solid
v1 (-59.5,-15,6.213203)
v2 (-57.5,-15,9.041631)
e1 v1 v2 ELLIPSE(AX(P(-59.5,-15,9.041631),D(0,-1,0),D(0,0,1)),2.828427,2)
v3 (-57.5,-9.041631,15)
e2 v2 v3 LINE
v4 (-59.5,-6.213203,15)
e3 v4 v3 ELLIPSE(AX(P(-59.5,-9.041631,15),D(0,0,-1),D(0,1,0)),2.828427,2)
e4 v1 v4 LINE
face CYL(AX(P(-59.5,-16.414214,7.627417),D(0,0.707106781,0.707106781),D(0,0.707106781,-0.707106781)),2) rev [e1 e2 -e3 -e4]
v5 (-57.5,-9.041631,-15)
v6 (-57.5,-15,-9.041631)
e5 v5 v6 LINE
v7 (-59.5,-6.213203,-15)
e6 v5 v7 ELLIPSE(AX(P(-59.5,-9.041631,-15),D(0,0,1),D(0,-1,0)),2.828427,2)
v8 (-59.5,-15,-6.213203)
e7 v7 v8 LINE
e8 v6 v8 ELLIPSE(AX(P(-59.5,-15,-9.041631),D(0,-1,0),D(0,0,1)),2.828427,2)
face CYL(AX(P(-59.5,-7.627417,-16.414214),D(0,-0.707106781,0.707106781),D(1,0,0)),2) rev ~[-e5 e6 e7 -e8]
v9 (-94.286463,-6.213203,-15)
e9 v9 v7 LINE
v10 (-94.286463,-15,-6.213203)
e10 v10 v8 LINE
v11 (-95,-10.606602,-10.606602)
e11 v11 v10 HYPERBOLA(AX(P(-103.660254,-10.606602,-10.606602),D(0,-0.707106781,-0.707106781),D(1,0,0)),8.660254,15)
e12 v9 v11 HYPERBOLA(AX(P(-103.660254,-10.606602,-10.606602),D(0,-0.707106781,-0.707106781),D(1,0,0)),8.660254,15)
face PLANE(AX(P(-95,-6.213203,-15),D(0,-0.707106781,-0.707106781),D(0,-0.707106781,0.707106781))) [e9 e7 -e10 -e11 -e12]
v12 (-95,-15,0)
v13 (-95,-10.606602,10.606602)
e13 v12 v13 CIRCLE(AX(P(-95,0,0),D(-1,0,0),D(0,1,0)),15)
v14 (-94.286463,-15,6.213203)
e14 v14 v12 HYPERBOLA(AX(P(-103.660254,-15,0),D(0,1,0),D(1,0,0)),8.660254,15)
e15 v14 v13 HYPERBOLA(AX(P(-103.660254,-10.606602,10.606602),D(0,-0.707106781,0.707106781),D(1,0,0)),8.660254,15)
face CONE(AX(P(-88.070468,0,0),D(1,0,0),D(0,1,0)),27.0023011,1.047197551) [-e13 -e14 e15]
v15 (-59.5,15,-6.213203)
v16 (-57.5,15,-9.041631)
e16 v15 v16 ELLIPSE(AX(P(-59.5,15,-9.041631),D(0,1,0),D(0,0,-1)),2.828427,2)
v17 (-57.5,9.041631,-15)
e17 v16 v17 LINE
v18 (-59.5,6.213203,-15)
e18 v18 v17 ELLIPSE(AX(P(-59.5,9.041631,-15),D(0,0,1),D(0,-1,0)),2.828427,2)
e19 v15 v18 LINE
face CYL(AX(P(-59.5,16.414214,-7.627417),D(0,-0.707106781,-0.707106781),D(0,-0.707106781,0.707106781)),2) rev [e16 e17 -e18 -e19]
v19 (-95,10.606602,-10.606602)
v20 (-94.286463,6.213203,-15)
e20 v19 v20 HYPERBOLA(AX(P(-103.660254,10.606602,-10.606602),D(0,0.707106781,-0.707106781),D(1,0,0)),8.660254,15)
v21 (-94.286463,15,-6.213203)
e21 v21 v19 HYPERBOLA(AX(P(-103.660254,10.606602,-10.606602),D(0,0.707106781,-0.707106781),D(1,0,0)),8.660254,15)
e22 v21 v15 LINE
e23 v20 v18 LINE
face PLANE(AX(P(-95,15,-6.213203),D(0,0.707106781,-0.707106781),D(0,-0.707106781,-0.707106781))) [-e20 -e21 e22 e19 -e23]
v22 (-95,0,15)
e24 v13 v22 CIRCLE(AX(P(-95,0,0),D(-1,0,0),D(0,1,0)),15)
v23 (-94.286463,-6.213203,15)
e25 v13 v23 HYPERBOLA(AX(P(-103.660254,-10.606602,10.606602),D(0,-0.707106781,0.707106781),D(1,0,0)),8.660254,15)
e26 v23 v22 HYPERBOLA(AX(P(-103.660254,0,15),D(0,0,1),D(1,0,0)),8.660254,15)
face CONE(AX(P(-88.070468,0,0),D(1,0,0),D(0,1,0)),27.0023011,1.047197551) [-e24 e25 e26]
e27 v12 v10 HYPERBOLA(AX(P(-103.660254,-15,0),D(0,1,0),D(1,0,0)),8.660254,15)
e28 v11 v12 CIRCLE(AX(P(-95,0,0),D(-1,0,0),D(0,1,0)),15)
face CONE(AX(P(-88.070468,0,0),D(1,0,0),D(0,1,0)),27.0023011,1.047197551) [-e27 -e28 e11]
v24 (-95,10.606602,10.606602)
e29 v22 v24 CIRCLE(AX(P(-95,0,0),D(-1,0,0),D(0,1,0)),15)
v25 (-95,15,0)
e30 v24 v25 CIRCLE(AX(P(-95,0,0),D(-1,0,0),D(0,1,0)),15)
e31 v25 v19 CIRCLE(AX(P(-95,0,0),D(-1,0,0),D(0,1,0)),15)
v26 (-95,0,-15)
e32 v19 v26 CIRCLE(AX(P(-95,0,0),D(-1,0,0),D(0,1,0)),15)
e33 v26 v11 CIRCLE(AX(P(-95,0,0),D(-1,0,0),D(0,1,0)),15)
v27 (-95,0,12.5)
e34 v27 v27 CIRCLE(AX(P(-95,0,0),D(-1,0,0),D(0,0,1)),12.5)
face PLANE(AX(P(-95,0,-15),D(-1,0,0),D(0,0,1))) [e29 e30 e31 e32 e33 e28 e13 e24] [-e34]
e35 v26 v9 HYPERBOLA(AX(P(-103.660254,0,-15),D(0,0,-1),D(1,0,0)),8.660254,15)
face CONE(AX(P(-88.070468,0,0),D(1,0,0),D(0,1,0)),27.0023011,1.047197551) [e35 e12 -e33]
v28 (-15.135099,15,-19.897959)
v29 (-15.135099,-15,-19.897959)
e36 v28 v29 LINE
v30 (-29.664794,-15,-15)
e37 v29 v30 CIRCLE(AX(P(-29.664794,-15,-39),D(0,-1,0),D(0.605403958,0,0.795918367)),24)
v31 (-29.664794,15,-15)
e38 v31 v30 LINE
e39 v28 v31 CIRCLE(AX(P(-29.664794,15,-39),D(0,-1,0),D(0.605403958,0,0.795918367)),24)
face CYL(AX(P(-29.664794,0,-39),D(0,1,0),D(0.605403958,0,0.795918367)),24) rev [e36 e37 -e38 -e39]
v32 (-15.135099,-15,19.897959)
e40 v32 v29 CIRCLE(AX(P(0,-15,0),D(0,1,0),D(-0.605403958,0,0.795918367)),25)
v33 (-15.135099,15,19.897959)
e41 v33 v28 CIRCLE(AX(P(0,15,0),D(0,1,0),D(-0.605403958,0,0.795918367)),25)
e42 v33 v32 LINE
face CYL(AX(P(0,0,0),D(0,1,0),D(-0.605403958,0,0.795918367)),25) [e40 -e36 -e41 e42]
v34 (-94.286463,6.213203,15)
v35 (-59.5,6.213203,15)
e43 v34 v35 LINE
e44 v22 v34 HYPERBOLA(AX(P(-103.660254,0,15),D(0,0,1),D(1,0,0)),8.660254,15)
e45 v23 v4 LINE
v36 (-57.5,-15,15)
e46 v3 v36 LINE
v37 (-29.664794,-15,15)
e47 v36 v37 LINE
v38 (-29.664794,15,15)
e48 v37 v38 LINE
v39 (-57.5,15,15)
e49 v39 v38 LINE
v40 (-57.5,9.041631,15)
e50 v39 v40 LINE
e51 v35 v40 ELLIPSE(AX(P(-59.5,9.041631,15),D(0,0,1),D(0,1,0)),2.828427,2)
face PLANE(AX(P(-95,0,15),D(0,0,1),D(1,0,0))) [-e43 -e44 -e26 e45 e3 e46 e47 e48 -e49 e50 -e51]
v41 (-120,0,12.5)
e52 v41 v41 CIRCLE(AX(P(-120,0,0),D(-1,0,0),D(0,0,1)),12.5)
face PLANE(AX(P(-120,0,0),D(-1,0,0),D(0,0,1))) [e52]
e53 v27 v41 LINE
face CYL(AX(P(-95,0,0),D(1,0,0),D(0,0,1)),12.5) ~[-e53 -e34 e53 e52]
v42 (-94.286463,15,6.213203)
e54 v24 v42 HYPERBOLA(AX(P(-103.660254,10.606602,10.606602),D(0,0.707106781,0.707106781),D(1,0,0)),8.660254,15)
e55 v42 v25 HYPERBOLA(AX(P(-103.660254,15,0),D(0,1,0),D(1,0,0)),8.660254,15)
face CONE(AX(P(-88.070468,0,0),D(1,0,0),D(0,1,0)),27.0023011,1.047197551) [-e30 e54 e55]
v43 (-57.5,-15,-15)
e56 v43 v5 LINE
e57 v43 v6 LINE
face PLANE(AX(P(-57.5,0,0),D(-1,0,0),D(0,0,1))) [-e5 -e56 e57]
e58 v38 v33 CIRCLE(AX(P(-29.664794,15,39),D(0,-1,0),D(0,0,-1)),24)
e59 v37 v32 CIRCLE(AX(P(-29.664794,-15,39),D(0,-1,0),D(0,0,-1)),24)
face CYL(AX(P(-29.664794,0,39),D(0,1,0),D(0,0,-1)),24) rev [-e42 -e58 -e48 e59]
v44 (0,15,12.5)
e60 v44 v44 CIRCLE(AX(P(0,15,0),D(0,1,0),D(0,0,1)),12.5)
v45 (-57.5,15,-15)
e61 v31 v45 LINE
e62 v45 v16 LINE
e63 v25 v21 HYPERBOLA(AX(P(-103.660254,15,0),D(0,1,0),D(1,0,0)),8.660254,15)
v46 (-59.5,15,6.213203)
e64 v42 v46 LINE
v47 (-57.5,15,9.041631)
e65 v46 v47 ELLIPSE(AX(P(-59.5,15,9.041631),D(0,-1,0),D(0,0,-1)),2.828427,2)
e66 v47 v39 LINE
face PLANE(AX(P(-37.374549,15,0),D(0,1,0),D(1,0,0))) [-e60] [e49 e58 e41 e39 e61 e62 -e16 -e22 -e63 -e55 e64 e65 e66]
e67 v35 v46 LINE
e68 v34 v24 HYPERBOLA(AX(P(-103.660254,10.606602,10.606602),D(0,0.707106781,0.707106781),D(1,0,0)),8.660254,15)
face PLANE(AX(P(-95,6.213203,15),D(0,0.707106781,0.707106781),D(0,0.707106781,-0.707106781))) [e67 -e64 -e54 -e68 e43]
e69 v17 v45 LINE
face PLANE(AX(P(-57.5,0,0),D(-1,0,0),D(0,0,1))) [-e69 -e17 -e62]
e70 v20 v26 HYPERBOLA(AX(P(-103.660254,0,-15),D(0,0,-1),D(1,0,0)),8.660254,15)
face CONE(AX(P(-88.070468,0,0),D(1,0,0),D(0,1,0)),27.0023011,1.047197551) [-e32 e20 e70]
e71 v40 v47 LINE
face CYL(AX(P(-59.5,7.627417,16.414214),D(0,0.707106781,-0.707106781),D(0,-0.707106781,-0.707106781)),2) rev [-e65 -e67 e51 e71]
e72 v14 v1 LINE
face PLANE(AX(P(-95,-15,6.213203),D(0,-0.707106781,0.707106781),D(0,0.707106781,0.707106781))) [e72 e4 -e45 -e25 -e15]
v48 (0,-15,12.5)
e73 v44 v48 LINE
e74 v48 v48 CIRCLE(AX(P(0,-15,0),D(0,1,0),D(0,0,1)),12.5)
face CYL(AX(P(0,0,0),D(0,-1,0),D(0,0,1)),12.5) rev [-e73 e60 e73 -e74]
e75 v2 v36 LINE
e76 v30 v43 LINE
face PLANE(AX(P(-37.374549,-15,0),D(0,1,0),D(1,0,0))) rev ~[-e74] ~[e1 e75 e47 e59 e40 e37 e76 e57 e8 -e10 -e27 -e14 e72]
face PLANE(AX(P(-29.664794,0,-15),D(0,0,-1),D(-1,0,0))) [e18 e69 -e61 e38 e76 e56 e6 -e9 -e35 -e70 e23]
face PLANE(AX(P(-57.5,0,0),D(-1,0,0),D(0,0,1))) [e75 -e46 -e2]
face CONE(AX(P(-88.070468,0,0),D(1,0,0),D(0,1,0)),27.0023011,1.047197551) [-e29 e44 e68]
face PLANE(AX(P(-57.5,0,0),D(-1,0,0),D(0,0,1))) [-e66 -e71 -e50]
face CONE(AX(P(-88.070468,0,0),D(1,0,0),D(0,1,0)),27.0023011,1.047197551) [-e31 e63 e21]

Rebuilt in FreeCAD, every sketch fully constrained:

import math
import FreeCAD as App
import Part
import Sketcher

V = App.Vector
Q = App.Units.Quantity


def edges_at(feature, points):
    """Names of the edges that pass closest to the given points."""
    edges = feature.Shape.Edges
    near = lambda p: min(range(len(edges)), key=lambda i: edges[i].distToShape(Part.Vertex(*p))[0])
    return sorted({f"Edge{near(p) + 1}" for p in points})


def add_polygon(sketch, points):
    """Adds a closed chain of lines whose ends are joined by coincident constraints."""
    first, n = sketch.GeometryCount, len(points)
    for a, b in zip(points, points[1:] + points[:1]):
        sketch.addGeometry(Part.LineSegment(App.Vector(*a, 0), App.Vector(*b, 0)), False)
    for i in range(n):
        sketch.addConstraint(Sketcher.Constraint("Coincident", first + i, 2, first + (i + 1) % n, 1))

doc = App.newDocument("Part")
body = doc.addObject("PartDesign::Body", "Body")

sketch1 = body.newObject("Sketcher::SketchObject", "Sketch")
sketch1.AttachmentSupport = (doc.getObject("XZ_Plane"), [""])
sketch1.MapMode = "FlatFace"
sketch1.addGeometry([
    Part.LineSegment(V(-30, -15, 0), V(-95, -15, 0)),
    Part.LineSegment(V(-95, -15, 0), V(-95, 15, 0)),
    Part.LineSegment(V(-95, 15, 0), V(-30, 15, 0)),
    Part.ArcOfCircle(Part.Circle(V(-30, 39, 0), V(0, 0, 1), 24), math.radians(-90), math.radians(-53)),
    Part.ArcOfCircle(Part.Circle(V(0, 0, 0), V(0, 0, 1), 25), math.radians(-127), math.radians(127)),
    Part.ArcOfCircle(Part.Circle(V(-30, -39, 0), V(0, 0, 1), 24), math.radians(53), math.radians(90)),
    Part.Circle(V(0, 0, 0), V(0, 0, 1), 12),
], False)
sketch1.addConstraint([
    Sketcher.Constraint("Coincident", 0, 2, 1, 1),
    Sketcher.Constraint("Coincident", 1, 2, 2, 1),
    Sketcher.Constraint("Tangent", 2, 2, 3, 1),
    Sketcher.Constraint("Tangent", 3, 2, 4, 2),
    Sketcher.Constraint("Tangent", 4, 1, 5, 1),
    Sketcher.Constraint("Tangent", 5, 2, 0, 1),
    Sketcher.Constraint("Horizontal", 0),
    Sketcher.Constraint("Vertical", 1),
    Sketcher.Constraint("Horizontal", 2),
    Sketcher.Constraint("Coincident", 4, 3, -1, 1),
    Sketcher.Constraint("Coincident", 6, 3, -1, 1),
    Sketcher.Constraint("Equal", 3, 5),
    Sketcher.Constraint("Vertical", 3, 3, 5, 3),
    Sketcher.Constraint("Diameter", 6, Q("25 mm")),
    Sketcher.Constraint("Radius", 3, Q("24 mm")),
    Sketcher.Constraint("Radius", 4, Q("25 mm")),
    Sketcher.Constraint("DistanceY", 1, 1, 1, 2, Q("30 mm")),
    Sketcher.Constraint("DistanceX", 0, 2, -1, 1, Q("95 mm")),
])
pad1 = body.newObject("PartDesign::Pad", "Pad")
pad1.Profile = sketch1
pad1.Length = 30
pad1.Midplane = True

sketch2 = body.newObject("Sketcher::SketchObject", "Sketch001")
sketch2.AttachmentSupport = (doc.getObject("YZ_Plane"), [""])
sketch2.MapMode = "FlatFace"
sketch2.AttachmentOffset = App.Placement(V(0, 0, -95), App.Rotation())
add_polygon(sketch2, [(29, -39), (-29, -39), (-29, 39), (29, 39)])
add_polygon(sketch2, [(15, -6), (15, 6), (6, 15), (-6, 15), (-15, 6), (-15, -6), (-6, -15), (6, -15)])
sketch2.addConstraint([
    Sketcher.Constraint("Horizontal", 0),
    Sketcher.Constraint("Vertical", 1),
    Sketcher.Constraint("Horizontal", 2),
    Sketcher.Constraint("Vertical", 3),
    Sketcher.Constraint("Vertical", 4),
    Sketcher.Constraint("Horizontal", 6),
    Sketcher.Constraint("Vertical", 8),
    Sketcher.Constraint("Horizontal", 10),
    Sketcher.Constraint("Symmetric", 0, 2, 2, 2, -1, 1),
    Sketcher.Constraint("Symmetric", 4, 2, 8, 2, -1, 1),
    Sketcher.Constraint("Symmetric", 5, 2, 9, 2, -1, 1),
    Sketcher.Constraint("Perpendicular", 5, 7),
    Sketcher.Constraint("Perpendicular", 9, 11),
    Sketcher.Constraint("Horizontal", 4, 2, 7, 2),
    Sketcher.Constraint("Horizontal", 8, 2, 11, 2),
    Sketcher.Constraint("Vertical", 6, 2, 9, 2),
    Sketcher.Constraint("Equal", 10, 4),
    Sketcher.Constraint("DistanceX", -1, 1, 4, 2, Q("15 mm")),
    Sketcher.Constraint("DistanceX", 0, 2, 0, 1, Q("58.684 mm")),
    Sketcher.Constraint("DistanceY", 1, 1, 1, 2, Q("78.684 mm")),
    Sketcher.Constraint("DistanceX", 6, 2, 6, 1, Q("12.426407 mm")),
])
pocket1 = body.newObject("PartDesign::Pocket", "Pocket")
pocket1.Profile = sketch2
pocket1.Length = 37.5
pocket1.Reversed = True

sketch3 = body.newObject("Sketcher::SketchObject", "Sketch002")
sketch3.AttachmentSupport = (doc.getObject("YZ_Plane"), [""])
sketch3.MapMode = "FlatFace"
sketch3.AttachmentOffset = App.Placement(V(0, 0, -95), App.Rotation())
sketch3.addGeometry(Part.Circle(V(0, 0, 0), V(0, 0, 1), 12), False)
sketch3.addConstraint([
    Sketcher.Constraint("Coincident", 0, 3, -1, 1),
    Sketcher.Constraint("Diameter", 0, Q("25 mm")),
])
pad2 = body.newObject("PartDesign::Pad", "Pad001")
pad2.Profile = sketch3
pad2.Length = 25
pad2.Reversed = True
doc.recompute()

fillet = body.newObject("PartDesign::Fillet", "Fillet")
fillet.Base = (pad2, edges_at(pad2, [
    (-57.5, 10.607, -10.607),
    (-57.5, -10.607, -10.607),
    (-57.5, 10.607, 10.607),
    (-57.5, -10.607, 10.607),
]))
fillet.Radius = 2

sketch4 = body.newObject("Sketcher::SketchObject", "Sketch003")
sketch4.AttachmentSupport = (doc.getObject("XY_Plane"), [""])
sketch4.MapMode = "FlatFace"
add_polygon(sketch4, [(-95, 27), (-95, 15), (-88, 27)])
sketch4.addConstraint([
    Sketcher.Constraint("Vertical", 0),
    Sketcher.Constraint("Horizontal", 2),
    Sketcher.Constraint("Angle", 1, Q("60 deg")),
    Sketcher.Constraint("DistanceX", 0, 2, -1, 1, Q("95 mm")),
    Sketcher.Constraint("DistanceY", -1, 1, 0, 2, Q("15 mm")),
    Sketcher.Constraint("DistanceY", 0, 2, 0, 1, Q("12.002301 mm")),
])
groove = body.newObject("PartDesign::Groove", "Groove")
groove.Profile = sketch4
groove.ReferenceAxis = (sketch4, ["H_Axis"])
groove.Angle = 360

doc.recompute()
